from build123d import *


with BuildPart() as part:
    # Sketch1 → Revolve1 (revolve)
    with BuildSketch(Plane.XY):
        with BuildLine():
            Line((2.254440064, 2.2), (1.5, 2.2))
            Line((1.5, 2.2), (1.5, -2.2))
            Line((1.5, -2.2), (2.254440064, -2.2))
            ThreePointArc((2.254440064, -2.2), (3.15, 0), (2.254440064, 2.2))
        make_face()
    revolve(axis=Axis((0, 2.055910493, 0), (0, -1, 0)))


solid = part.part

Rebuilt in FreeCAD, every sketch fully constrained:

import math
import FreeCAD as App
import Part
import Sketcher

V = App.Vector
Q = App.Units.Quantity

doc = App.newDocument("Part")
body = doc.addObject("PartDesign::Body", "Body")

# Sketch on XY plane
sketch1 = body.newObject("Sketcher::SketchObject", "Sketch")
sketch1.AttachmentSupport = (doc.getObject("XY_Plane"), [""])
sketch1.MapMode = "FlatFace"
sketch1.addGeometry(Part.LineSegment(V(2.3, 2.2, 0), V(1.5, 2.2, 0)), False)
sketch1.addGeometry(Part.LineSegment(V(1.5, 2.2, 0), V(1.5, -2.2, 0)), False)
sketch1.addGeometry(Part.LineSegment(V(1.5, -2.2, 0), V(2.3, -2.2, 0)), False)
sketch1.addGeometry(Part.ArcOfCircle(Part.Circle(V(0, 0, 0), V(0, 0, 1), 3.2), math.radians(-44), math.radians(44)), False)
sketch1.addConstraint(Sketcher.Constraint("Coincident", 0, 2, 1, 1))
sketch1.addConstraint(Sketcher.Constraint("Coincident", 1, 2, 2, 1))
sketch1.addConstraint(Sketcher.Constraint("Coincident", 2, 2, 3, 1))
sketch1.addConstraint(Sketcher.Constraint("Coincident", 3, 2, 0, 1))
sketch1.addConstraint(Sketcher.Constraint("Horizontal", 0))
sketch1.addConstraint(Sketcher.Constraint("Vertical", 1))
sketch1.addConstraint(Sketcher.Constraint("Horizontal", 2))
sketch1.addConstraint(Sketcher.Constraint("Coincident", 3, 3, -1, 1))
sketch1.addConstraint(Sketcher.Constraint("Vertical", 2, 2, 3, 2))
sketch1.addConstraint(Sketcher.Constraint("Radius", 3, Q("3.15 mm")))
sketch1.addConstraint(Sketcher.Constraint("DistanceY", 1, 2, 1, 1, Q("4.4 mm")))
sketch1.addConstraint(Sketcher.Constraint("DistanceX", -1, 1, 0, 2, Q("1.5 mm")))
revolution = body.newObject("PartDesign::Revolution", "Revolution")
revolution.Profile = sketch1
revolution.ReferenceAxis = (sketch1, ["V_Axis"])
revolution.Angle = 360

doc.recompute()
